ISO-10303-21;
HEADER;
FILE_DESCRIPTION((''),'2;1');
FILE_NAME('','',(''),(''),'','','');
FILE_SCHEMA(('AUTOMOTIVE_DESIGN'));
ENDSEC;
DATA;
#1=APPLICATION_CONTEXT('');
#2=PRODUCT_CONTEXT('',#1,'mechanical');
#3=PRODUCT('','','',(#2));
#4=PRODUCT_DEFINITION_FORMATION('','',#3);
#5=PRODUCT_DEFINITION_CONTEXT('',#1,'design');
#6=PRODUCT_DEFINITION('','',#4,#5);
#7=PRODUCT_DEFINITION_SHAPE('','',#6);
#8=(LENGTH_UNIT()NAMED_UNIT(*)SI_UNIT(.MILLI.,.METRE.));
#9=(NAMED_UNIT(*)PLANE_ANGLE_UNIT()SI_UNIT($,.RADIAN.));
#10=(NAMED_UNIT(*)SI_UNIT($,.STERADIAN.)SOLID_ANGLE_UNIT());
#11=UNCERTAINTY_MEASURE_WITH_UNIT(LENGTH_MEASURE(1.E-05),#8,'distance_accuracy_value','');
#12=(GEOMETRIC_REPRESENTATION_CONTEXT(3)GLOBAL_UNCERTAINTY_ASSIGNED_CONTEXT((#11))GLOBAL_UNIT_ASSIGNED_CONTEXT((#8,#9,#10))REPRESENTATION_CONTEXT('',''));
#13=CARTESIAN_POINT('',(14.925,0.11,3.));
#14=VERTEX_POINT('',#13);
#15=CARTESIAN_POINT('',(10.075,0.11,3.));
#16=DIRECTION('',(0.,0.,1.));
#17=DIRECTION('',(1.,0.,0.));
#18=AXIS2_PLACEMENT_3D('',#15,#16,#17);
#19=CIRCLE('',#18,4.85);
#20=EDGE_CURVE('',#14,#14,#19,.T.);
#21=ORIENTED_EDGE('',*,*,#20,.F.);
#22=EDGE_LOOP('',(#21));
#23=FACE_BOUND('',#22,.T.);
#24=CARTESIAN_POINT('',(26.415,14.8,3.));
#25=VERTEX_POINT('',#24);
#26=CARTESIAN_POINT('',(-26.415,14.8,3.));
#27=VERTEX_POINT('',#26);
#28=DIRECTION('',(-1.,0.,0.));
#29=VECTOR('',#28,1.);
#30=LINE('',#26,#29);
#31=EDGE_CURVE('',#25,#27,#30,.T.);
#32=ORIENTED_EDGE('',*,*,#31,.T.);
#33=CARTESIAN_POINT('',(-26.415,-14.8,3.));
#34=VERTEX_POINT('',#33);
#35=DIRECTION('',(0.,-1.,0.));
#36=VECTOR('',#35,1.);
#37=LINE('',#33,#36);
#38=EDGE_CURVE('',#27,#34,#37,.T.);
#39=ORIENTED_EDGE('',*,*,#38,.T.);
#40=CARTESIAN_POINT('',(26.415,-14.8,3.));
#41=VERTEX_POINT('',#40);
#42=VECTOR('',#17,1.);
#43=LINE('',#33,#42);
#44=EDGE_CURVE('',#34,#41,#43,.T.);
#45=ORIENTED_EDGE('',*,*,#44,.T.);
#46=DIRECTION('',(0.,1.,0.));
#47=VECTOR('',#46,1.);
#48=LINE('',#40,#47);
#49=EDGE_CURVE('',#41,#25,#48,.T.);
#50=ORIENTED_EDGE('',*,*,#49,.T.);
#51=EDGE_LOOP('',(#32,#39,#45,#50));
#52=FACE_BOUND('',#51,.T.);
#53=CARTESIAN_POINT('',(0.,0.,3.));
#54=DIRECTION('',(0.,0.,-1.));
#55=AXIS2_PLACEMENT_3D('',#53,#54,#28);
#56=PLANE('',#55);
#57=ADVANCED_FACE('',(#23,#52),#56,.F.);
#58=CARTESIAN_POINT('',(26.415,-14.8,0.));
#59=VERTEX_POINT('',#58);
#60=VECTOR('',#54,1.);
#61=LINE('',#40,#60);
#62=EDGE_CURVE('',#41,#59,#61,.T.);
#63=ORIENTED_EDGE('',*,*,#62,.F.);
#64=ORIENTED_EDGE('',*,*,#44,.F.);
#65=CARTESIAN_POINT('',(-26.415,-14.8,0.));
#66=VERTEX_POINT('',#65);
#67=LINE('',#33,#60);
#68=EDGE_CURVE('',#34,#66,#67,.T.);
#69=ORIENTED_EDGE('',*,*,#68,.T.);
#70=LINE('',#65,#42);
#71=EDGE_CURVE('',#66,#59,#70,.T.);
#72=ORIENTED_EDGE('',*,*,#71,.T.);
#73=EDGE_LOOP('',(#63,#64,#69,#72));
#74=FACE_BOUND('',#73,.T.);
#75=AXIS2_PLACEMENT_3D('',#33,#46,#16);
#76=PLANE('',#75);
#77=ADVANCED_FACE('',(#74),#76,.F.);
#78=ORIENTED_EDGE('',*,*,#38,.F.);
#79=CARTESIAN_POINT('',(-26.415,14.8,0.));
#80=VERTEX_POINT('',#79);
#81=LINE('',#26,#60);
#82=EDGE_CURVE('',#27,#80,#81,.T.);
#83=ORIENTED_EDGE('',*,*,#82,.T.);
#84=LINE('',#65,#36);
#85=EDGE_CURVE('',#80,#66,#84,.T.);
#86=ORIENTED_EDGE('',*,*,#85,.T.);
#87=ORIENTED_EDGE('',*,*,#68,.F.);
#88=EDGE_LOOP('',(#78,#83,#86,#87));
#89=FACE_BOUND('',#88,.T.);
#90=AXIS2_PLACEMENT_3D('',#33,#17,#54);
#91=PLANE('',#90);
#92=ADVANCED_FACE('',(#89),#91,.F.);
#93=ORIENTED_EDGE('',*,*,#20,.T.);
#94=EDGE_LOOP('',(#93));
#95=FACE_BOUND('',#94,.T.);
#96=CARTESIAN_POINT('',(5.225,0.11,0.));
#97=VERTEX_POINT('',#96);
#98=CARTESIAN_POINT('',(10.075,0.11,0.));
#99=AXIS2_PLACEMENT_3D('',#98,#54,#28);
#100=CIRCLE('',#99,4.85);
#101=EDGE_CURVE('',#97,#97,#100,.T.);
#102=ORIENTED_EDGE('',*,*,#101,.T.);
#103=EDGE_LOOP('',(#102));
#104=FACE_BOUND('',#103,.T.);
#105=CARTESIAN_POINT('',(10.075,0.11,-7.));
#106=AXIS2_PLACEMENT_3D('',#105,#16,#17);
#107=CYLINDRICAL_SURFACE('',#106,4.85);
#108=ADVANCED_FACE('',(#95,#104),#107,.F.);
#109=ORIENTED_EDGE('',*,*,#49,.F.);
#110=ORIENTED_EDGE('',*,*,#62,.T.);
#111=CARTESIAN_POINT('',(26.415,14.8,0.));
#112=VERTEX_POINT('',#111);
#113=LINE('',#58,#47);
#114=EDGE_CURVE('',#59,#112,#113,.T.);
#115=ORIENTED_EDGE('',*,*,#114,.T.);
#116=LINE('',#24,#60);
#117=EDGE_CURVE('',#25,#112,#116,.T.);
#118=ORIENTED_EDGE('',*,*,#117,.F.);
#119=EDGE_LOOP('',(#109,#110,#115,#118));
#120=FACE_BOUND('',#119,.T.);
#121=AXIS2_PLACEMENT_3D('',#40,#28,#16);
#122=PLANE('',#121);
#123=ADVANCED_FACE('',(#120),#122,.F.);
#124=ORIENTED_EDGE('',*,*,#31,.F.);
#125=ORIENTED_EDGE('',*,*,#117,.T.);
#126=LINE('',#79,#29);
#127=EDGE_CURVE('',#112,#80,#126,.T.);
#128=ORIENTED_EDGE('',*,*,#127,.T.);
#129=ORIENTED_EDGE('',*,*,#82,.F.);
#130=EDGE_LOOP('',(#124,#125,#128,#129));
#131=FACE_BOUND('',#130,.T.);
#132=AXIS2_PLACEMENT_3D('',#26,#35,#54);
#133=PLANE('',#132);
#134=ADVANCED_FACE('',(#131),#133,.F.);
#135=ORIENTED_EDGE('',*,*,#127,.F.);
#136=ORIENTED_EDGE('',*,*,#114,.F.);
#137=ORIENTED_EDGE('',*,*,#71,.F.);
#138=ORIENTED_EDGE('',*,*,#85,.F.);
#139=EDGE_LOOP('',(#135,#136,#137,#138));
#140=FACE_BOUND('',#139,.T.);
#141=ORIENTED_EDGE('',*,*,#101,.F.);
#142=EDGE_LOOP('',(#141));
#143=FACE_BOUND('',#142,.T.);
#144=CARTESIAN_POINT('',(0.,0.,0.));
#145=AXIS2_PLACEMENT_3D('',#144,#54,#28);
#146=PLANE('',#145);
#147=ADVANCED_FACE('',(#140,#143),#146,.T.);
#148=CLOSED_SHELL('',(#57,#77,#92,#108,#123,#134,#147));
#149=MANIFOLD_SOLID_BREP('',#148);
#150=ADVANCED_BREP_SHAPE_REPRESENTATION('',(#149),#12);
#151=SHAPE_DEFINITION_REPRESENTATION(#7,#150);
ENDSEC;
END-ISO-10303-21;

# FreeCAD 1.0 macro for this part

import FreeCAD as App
import Part
import Sketcher

V = App.Vector
Q = App.Units.Quantity

doc = App.newDocument("Part")
params = doc.addObject("Spreadsheet::Sheet", "Params")
for row, (alias, value) in enumerate([
    ("sketch1_height", "29.6 mm"),
    ("sketch1_width", "52.83 mm"),
    ("pad1_length", "3 mm"),
    ("sketch2_diameter", "9.7 mm"),
    ("pocket1_length", "10 mm"),
], start=1):
    params.set(f"A{row}", alias)
    params.set(f"B{row}", "=" + value)
    params.setAlias(f"B{row}", alias)

body = doc.addObject("PartDesign::Body", "Body")

sketch1 = body.newObject("Sketcher::SketchObject", "Sketch")
sketch1.AttachmentSupport = (doc.getObject("XY_Plane"), [""])
sketch1.MapMode = "FlatFace"
sketch1.addGeometry([
    Part.LineSegment(V(-26, 15, 0), V(-26, -15, 0)),
    Part.LineSegment(V(-26, -15, 0), V(26, -15, 0)),
    Part.LineSegment(V(26, -15, 0), V(26, 15, 0)),
    Part.LineSegment(V(26, 15, 0), V(-26, 15, 0)),
], False)
sketch1.addConstraint([
    Sketcher.Constraint("Coincident", 0, 2, 1, 1),
    Sketcher.Constraint("Coincident", 1, 2, 2, 1),
    Sketcher.Constraint("Coincident", 2, 2, 3, 1),
    Sketcher.Constraint("Coincident", 3, 2, 0, 1),
    Sketcher.Constraint("Vertical", 0),
    Sketcher.Constraint("Horizontal", 1),
    Sketcher.Constraint("Vertical", 2),
    Sketcher.Constraint("Horizontal", 3),
    Sketcher.Constraint("Symmetric", 0, 2, 2, 2, -1, 1),
    Sketcher.Constraint("DistanceY", 0, 2, 0, 1, Q("29.6 mm")),
    Sketcher.Constraint("DistanceX", 1, 1, 1, 2, Q("52.83 mm")),
])
sketch1.setExpression("Constraints[9]", "Params.sketch1_height")
sketch1.setExpression("Constraints[10]", "Params.sketch1_width")
pad1 = body.newObject("PartDesign::Pad", "Pad")
pad1.Profile = sketch1
pad1.setExpression("Length", "Params.pad1_length")

sketch2 = body.newObject("Sketcher::SketchObject", "Sketch001")
sketch2.AttachmentSupport = (doc.getObject("XY_Plane"), [""])
sketch2.MapMode = "FlatFace"
sketch2.AttachmentOffset = App.Placement(V(0, 0, 3), App.Rotation())
sketch2.addGeometry(Part.Circle(V(10.1, 0.1, 0), V(0, 0, 1), 4.8), False)
sketch2.addConstraint([
    Sketcher.Constraint("Diameter", 0, Q("9.7 mm")),
    Sketcher.Constraint("DistanceY", -1, 1, 0, 3, Q("0.11 mm")),
    Sketcher.Constraint("DistanceX", -1, 1, 0, 3, Q("10.075 mm")),
])
sketch2.setExpression("Constraints[0]", "Params.sketch2_diameter")
pocket1 = body.newObject("PartDesign::Pocket", "Pocket")
pocket1.Profile = sketch2
pocket1.setExpression("Length", "Params.pocket1_length")

doc.recompute()
